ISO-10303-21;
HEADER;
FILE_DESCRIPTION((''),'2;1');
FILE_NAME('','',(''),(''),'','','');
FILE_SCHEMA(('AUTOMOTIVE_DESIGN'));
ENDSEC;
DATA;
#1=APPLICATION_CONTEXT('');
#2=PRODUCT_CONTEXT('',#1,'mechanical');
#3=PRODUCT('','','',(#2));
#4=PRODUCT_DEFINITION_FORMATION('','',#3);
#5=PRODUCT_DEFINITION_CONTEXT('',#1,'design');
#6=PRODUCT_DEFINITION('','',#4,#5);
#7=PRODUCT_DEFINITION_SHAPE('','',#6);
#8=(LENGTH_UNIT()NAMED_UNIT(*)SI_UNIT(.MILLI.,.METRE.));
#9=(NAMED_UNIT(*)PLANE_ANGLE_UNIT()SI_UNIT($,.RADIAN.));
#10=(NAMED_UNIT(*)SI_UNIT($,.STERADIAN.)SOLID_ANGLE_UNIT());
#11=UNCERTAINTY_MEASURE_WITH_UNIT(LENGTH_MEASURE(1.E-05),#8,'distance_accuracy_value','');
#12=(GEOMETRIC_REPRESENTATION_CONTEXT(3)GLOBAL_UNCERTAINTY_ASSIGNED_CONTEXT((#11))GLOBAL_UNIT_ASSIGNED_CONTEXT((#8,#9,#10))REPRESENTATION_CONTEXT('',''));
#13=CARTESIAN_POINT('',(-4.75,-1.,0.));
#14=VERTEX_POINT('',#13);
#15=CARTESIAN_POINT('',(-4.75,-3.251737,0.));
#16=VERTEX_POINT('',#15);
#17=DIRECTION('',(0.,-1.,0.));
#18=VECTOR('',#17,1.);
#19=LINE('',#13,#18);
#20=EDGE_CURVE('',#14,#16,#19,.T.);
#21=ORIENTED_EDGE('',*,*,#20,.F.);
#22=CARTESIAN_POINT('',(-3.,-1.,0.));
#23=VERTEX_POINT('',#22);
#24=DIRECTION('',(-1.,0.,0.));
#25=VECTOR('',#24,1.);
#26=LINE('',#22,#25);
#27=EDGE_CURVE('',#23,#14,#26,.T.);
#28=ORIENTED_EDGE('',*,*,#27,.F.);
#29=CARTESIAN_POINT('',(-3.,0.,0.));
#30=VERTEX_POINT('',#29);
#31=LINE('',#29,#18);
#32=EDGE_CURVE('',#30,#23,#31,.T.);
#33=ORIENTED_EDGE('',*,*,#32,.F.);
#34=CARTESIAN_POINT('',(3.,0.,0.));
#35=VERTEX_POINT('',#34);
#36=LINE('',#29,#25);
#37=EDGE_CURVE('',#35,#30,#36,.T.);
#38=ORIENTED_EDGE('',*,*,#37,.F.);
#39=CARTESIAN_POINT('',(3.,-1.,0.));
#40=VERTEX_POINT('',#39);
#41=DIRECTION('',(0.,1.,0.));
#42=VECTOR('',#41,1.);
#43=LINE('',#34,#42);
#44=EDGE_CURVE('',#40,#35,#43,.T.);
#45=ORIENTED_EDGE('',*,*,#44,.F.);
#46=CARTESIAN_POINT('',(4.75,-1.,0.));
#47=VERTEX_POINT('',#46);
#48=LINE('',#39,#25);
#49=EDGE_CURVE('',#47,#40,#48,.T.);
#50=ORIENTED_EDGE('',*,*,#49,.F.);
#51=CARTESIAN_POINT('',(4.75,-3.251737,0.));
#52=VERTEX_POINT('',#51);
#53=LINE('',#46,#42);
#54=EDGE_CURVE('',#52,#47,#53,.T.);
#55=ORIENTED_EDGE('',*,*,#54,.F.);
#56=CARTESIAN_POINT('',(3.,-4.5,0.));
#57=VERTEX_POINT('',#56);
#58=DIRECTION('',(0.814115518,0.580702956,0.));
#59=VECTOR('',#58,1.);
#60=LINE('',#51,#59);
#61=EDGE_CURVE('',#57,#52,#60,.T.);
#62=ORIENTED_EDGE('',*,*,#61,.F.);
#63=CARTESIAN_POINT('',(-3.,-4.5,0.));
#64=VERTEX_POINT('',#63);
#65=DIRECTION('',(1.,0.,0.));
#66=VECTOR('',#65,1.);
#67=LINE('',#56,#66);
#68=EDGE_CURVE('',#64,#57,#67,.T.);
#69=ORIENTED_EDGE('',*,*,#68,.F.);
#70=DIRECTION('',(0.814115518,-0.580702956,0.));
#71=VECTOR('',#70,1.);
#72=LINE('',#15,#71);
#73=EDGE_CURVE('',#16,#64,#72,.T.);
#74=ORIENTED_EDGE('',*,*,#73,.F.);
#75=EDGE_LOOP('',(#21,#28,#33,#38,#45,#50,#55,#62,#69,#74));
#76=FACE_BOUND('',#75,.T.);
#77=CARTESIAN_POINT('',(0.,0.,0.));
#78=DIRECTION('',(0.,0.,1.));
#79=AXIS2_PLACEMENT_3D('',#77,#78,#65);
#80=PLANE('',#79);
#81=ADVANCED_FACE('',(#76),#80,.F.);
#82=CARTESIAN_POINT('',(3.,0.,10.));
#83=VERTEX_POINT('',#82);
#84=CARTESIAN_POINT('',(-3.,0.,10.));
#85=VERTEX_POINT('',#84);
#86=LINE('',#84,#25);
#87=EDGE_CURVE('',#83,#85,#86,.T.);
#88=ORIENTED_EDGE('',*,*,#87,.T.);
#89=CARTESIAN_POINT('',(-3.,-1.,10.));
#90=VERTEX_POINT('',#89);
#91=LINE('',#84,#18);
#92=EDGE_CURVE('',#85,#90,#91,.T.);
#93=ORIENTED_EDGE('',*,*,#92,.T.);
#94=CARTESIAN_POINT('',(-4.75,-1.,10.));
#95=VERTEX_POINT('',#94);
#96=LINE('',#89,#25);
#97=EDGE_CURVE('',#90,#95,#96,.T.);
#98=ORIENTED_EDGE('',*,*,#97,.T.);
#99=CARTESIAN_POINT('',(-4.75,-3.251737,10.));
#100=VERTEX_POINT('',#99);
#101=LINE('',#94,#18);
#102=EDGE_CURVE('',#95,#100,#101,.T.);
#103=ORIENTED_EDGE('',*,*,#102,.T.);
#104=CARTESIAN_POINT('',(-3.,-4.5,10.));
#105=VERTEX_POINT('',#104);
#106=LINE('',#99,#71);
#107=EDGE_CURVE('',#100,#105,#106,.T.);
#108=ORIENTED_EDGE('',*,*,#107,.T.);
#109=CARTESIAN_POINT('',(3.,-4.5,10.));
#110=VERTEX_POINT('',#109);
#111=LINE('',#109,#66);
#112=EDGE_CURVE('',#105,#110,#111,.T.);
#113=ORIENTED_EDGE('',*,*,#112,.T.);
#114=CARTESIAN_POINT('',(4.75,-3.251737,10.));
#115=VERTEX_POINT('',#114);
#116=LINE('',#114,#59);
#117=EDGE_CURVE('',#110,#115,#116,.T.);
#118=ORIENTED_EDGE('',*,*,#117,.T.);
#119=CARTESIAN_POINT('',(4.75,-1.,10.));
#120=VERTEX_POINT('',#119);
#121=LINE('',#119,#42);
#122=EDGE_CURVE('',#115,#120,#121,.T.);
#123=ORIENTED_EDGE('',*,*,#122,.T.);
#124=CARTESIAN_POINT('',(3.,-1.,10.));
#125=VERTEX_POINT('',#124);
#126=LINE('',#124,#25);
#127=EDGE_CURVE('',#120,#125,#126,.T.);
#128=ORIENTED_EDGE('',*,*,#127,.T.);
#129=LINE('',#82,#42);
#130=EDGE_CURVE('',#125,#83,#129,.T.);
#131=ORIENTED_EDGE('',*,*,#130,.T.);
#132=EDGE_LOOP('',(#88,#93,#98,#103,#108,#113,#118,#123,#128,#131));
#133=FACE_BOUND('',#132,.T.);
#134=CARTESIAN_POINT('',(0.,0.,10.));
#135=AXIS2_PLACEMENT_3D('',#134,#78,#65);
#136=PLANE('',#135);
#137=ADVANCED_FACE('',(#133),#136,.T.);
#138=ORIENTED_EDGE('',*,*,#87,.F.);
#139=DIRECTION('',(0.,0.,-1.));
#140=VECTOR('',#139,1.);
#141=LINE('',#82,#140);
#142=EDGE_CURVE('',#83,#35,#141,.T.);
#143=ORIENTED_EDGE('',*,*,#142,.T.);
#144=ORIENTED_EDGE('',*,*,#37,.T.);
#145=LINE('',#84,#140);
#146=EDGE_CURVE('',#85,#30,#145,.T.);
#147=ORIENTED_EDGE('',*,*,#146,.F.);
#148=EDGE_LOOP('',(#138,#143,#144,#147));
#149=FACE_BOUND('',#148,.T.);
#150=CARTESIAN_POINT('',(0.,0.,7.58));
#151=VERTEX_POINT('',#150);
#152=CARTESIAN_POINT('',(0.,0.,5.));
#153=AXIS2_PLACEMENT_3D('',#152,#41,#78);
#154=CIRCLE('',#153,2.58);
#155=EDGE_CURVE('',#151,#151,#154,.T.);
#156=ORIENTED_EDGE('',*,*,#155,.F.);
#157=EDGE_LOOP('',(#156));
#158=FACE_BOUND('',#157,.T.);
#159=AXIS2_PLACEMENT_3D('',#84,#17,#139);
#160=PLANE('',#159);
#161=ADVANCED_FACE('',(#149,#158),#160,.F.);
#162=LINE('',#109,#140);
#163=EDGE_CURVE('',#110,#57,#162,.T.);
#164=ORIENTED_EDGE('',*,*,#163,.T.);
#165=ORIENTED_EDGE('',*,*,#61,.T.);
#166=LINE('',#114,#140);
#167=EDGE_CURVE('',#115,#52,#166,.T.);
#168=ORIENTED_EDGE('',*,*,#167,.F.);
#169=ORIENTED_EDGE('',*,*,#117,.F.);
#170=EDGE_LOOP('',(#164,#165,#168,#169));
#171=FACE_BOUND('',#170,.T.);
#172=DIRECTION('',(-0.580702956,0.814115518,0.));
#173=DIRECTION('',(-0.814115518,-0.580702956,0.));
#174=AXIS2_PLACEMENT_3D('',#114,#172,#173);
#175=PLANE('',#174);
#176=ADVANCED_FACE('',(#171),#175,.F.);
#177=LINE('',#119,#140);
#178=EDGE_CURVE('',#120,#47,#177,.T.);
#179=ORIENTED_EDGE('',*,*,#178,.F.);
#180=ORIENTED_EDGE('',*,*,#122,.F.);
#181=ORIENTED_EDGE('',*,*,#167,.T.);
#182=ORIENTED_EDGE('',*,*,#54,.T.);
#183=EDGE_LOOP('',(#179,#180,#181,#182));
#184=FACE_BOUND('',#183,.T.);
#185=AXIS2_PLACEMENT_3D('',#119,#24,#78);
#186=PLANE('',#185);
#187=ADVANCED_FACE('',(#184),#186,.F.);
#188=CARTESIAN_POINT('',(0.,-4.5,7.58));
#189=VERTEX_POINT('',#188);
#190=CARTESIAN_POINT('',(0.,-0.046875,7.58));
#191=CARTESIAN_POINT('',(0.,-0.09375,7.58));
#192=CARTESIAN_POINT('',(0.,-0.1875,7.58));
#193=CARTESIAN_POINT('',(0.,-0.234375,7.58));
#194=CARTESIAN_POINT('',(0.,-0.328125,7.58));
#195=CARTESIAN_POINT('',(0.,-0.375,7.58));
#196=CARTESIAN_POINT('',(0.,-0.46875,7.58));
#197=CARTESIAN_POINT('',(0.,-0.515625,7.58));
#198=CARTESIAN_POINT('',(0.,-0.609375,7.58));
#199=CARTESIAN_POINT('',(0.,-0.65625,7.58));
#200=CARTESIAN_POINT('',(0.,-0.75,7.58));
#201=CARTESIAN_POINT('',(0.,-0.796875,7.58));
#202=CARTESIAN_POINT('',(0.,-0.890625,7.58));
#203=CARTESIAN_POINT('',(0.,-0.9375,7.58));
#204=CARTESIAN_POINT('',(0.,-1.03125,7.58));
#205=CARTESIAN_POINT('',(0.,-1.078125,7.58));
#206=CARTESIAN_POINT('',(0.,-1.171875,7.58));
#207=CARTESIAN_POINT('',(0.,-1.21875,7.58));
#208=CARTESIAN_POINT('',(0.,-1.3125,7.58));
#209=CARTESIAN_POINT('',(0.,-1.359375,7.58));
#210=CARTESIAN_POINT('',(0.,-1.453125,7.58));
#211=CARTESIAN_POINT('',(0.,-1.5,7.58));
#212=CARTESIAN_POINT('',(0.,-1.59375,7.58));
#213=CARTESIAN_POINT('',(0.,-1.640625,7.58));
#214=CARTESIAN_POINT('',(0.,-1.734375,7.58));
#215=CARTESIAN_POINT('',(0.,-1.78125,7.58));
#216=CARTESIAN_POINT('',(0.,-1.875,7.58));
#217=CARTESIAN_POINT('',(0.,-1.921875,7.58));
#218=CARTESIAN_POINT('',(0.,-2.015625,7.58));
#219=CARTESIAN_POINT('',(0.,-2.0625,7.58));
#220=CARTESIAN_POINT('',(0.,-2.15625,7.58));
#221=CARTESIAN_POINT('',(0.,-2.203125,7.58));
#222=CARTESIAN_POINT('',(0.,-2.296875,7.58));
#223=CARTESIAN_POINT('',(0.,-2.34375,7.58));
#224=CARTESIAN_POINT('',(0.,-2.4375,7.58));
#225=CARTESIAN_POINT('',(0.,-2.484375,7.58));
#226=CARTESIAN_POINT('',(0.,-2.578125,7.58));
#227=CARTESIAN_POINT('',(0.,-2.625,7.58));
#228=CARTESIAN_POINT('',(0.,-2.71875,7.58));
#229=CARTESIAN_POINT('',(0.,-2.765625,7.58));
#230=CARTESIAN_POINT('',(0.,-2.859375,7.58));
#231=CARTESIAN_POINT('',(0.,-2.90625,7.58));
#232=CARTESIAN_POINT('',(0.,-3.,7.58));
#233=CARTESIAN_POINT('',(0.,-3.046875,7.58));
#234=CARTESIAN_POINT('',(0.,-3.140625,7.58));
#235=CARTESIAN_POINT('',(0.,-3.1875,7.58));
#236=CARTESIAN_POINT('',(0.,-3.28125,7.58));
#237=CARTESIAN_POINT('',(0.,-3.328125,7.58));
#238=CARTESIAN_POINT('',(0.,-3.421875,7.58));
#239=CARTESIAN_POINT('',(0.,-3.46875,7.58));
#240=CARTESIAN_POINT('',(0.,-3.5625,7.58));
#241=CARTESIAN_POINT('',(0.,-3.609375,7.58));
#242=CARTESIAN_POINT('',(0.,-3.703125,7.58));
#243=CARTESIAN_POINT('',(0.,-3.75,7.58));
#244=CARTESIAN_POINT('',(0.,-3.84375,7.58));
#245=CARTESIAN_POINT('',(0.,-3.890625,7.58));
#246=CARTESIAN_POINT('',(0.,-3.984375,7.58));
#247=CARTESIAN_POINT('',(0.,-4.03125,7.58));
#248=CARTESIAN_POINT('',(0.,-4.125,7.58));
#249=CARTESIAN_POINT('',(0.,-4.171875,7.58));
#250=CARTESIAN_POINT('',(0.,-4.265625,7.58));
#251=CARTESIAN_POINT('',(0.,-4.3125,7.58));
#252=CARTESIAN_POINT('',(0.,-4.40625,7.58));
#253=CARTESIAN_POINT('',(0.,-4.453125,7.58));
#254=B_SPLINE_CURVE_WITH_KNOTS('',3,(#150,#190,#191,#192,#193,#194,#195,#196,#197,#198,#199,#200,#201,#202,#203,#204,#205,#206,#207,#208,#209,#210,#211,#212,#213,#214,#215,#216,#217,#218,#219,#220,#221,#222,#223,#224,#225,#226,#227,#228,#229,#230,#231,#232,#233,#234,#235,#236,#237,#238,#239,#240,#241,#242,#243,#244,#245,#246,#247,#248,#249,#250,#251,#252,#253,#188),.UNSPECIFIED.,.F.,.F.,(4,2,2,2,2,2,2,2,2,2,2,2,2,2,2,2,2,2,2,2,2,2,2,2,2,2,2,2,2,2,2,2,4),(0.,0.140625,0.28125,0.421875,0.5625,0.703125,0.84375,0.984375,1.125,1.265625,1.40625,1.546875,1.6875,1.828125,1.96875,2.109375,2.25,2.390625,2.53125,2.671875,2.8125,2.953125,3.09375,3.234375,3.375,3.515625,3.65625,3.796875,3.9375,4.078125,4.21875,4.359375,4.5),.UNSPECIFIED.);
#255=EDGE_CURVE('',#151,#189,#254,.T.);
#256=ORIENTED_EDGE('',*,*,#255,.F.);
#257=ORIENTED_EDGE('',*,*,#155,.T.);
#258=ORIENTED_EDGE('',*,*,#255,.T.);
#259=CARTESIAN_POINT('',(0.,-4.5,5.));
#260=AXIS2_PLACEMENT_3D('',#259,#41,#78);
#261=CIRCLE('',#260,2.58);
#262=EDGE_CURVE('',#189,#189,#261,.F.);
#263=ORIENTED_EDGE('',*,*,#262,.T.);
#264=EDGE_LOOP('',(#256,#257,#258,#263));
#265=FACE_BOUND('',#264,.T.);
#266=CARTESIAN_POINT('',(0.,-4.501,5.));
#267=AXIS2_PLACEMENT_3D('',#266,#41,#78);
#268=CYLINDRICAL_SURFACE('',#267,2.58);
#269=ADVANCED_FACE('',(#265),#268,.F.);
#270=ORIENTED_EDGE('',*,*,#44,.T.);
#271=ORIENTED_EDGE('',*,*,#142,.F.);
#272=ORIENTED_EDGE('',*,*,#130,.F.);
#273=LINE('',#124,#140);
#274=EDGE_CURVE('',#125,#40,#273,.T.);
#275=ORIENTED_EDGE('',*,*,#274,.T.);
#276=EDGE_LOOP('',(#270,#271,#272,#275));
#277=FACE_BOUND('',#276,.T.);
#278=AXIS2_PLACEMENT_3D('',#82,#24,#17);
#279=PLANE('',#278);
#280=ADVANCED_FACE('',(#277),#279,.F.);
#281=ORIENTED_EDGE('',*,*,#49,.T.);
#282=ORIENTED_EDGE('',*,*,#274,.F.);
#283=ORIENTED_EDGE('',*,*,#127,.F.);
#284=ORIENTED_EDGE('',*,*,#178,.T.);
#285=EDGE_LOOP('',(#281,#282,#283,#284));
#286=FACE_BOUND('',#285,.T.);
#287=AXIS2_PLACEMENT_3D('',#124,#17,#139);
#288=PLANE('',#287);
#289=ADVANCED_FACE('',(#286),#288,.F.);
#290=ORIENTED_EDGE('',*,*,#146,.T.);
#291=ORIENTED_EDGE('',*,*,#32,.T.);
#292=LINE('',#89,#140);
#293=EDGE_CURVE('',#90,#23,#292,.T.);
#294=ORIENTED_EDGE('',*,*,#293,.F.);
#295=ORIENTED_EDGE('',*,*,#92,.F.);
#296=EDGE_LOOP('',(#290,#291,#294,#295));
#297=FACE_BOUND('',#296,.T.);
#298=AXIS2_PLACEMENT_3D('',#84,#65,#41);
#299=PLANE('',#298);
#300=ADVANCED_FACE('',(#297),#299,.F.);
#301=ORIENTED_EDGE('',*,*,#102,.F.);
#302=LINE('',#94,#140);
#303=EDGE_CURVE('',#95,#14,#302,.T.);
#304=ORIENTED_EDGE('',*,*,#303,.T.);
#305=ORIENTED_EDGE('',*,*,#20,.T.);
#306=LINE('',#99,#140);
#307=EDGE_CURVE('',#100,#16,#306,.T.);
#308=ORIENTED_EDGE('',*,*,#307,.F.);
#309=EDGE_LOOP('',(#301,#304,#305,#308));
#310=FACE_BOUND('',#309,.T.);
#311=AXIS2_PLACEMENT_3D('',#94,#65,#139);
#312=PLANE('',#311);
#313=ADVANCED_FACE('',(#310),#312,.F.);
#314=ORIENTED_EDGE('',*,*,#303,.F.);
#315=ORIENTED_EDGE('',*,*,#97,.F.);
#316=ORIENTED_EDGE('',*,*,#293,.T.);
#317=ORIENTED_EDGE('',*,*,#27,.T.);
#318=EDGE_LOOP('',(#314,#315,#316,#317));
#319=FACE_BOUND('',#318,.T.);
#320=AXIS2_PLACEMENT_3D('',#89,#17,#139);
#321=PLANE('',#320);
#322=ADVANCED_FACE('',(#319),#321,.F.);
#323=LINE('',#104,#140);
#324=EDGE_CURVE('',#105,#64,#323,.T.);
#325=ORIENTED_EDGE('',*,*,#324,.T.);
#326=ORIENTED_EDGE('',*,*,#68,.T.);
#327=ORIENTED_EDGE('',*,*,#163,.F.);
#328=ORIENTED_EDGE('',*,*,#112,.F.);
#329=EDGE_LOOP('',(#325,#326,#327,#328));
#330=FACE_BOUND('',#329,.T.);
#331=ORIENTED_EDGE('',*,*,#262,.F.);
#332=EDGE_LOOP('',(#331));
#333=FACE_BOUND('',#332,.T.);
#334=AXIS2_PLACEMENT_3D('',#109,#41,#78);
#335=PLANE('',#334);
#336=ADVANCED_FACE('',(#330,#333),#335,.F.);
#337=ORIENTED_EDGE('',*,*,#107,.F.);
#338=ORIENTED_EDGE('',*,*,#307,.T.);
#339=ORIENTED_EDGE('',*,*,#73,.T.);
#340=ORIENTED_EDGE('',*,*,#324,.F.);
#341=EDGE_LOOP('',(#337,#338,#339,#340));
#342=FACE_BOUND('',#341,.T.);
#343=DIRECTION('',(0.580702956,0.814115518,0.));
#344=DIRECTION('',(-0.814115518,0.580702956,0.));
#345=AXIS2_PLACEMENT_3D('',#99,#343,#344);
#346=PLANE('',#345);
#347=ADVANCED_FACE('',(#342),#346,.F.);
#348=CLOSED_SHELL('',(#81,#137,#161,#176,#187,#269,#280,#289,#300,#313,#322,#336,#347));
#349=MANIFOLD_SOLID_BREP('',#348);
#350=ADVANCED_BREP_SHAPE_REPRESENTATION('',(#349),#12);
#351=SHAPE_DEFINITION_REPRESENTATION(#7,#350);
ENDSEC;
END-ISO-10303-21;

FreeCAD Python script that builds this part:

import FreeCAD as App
import Part
import Sketcher
Q = App.Units.Quantity


def add_polygon(sketch, points):
    """Adds a closed chain of lines whose ends are joined by coincident constraints."""
    first, n = sketch.GeometryCount, len(points)
    for a, b in zip(points, points[1:] + points[:1]):
        sketch.addGeometry(Part.LineSegment(App.Vector(*a, 0), App.Vector(*b, 0)), False)
    for i in range(n):
        sketch.addConstraint(Sketcher.Constraint("Coincident", first + i, 2, first + (i + 1) % n, 1))

doc = App.newDocument("Part")
params = doc.addObject("Spreadsheet::Sheet", "Params")
for row, (alias, value) in enumerate([
    ("sketch1_width", "6 mm"),
    ("sketch1_height", "1 mm"),
    ("sketch1_width2", "1.75 mm"),
    ("pad1_length", "10 mm"),
    ("sketch2_diameter", "5.16 mm"),
], start=1):
    params.set(f"A{row}", alias)
    params.set(f"B{row}", "=" + value)
    params.setAlias(f"B{row}", alias)

body = doc.addObject("PartDesign::Body", "Body")

# Sketch on XY plane
sketch1 = doc.addObject("Sketcher::SketchObject", "Sketch")
body.addObject(sketch1)
sketch1.AttachmentSupport = (doc.XY_Plane, [""])
sketch1.MapMode = "FlatFace"
add_polygon(sketch1, [(3, 0), (-3, 0), (-3, -1), (-4.8, -1), (-4.8, -3.3), (-3, -4.5), (3, -4.5), (4.8, -3.3), (4.8, -1), (3, -1)])  # lines 0-9
sketch1.addConstraint([
    Sketcher.Constraint("Horizontal", 0),
    Sketcher.Constraint("Vertical", 1),
    Sketcher.Constraint("Horizontal", 2),
    Sketcher.Constraint("Vertical", 3),
    Sketcher.Constraint("Horizontal", 5),
    Sketcher.Constraint("Vertical", 7),
    Sketcher.Constraint("Horizontal", 8),
    Sketcher.Constraint("Vertical", 9),
    Sketcher.Constraint("Symmetric", 0, 2, 9, 2, -1, 1),
    Sketcher.Constraint("Symmetric", 3, 2, 6, 2, -2),
    Sketcher.Constraint("Horizontal", 2, 2, 7, 2),
    Sketcher.Constraint("Vertical", 1, 2, 4, 2),
    Sketcher.Constraint("Vertical", 5, 2, 8, 2),
    Sketcher.Constraint("DistanceX", 0, 2, 0, 1, 6.0),
    Sketcher.Constraint("DistanceY", 1, 2, 1, 1, 1.0),
    Sketcher.Constraint("Angle", 4, Q("-35.5 deg")),
    Sketcher.Constraint("DistanceX", 2, 2, 2, 1, 1.75),
    Sketcher.Constraint("DistanceY", 4, 2, -1, 1, 4.5),
])
sketch1.setExpression("Constraints[23]", "Params.sketch1_width")
sketch1.setExpression("Constraints[24]", "Params.sketch1_height")
sketch1.setExpression("Constraints[26]", "Params.sketch1_width2")
pad1 = doc.addObject("PartDesign::Pad", "Pad")
body.addObject(pad1)
pad1.Profile = sketch1
pad1.setExpression("Length", "Params.pad1_length")

# Sketch on XZ plane
sketch2 = doc.addObject("Sketcher::SketchObject", "Sketch001")
body.addObject(sketch2)
sketch2.AttachmentSupport = (doc.XZ_Plane, [""])
sketch2.MapMode = "FlatFace"
sketch2.addGeometry(Part.Circle(App.Vector(0, 5, 0), App.Vector(0, 0, 1), 2.6), False)
sketch2.addConstraint([
    Sketcher.Constraint("PointOnObject", 0, 3, -2),
    Sketcher.Constraint("Diameter", 0, 5.16),
    Sketcher.Constraint("DistanceY", -1, 1, 0, 3, 5.0),
])
sketch2.setExpression("Constraints[1]", "Params.sketch2_diameter")
pocket1 = doc.addObject("PartDesign::Pocket", "Pocket")
body.addObject(pocket1)
pocket1.Profile = sketch2
pocket1.Type = "UpToFirst"
pocket1.Reversed = True

doc.recompute()
